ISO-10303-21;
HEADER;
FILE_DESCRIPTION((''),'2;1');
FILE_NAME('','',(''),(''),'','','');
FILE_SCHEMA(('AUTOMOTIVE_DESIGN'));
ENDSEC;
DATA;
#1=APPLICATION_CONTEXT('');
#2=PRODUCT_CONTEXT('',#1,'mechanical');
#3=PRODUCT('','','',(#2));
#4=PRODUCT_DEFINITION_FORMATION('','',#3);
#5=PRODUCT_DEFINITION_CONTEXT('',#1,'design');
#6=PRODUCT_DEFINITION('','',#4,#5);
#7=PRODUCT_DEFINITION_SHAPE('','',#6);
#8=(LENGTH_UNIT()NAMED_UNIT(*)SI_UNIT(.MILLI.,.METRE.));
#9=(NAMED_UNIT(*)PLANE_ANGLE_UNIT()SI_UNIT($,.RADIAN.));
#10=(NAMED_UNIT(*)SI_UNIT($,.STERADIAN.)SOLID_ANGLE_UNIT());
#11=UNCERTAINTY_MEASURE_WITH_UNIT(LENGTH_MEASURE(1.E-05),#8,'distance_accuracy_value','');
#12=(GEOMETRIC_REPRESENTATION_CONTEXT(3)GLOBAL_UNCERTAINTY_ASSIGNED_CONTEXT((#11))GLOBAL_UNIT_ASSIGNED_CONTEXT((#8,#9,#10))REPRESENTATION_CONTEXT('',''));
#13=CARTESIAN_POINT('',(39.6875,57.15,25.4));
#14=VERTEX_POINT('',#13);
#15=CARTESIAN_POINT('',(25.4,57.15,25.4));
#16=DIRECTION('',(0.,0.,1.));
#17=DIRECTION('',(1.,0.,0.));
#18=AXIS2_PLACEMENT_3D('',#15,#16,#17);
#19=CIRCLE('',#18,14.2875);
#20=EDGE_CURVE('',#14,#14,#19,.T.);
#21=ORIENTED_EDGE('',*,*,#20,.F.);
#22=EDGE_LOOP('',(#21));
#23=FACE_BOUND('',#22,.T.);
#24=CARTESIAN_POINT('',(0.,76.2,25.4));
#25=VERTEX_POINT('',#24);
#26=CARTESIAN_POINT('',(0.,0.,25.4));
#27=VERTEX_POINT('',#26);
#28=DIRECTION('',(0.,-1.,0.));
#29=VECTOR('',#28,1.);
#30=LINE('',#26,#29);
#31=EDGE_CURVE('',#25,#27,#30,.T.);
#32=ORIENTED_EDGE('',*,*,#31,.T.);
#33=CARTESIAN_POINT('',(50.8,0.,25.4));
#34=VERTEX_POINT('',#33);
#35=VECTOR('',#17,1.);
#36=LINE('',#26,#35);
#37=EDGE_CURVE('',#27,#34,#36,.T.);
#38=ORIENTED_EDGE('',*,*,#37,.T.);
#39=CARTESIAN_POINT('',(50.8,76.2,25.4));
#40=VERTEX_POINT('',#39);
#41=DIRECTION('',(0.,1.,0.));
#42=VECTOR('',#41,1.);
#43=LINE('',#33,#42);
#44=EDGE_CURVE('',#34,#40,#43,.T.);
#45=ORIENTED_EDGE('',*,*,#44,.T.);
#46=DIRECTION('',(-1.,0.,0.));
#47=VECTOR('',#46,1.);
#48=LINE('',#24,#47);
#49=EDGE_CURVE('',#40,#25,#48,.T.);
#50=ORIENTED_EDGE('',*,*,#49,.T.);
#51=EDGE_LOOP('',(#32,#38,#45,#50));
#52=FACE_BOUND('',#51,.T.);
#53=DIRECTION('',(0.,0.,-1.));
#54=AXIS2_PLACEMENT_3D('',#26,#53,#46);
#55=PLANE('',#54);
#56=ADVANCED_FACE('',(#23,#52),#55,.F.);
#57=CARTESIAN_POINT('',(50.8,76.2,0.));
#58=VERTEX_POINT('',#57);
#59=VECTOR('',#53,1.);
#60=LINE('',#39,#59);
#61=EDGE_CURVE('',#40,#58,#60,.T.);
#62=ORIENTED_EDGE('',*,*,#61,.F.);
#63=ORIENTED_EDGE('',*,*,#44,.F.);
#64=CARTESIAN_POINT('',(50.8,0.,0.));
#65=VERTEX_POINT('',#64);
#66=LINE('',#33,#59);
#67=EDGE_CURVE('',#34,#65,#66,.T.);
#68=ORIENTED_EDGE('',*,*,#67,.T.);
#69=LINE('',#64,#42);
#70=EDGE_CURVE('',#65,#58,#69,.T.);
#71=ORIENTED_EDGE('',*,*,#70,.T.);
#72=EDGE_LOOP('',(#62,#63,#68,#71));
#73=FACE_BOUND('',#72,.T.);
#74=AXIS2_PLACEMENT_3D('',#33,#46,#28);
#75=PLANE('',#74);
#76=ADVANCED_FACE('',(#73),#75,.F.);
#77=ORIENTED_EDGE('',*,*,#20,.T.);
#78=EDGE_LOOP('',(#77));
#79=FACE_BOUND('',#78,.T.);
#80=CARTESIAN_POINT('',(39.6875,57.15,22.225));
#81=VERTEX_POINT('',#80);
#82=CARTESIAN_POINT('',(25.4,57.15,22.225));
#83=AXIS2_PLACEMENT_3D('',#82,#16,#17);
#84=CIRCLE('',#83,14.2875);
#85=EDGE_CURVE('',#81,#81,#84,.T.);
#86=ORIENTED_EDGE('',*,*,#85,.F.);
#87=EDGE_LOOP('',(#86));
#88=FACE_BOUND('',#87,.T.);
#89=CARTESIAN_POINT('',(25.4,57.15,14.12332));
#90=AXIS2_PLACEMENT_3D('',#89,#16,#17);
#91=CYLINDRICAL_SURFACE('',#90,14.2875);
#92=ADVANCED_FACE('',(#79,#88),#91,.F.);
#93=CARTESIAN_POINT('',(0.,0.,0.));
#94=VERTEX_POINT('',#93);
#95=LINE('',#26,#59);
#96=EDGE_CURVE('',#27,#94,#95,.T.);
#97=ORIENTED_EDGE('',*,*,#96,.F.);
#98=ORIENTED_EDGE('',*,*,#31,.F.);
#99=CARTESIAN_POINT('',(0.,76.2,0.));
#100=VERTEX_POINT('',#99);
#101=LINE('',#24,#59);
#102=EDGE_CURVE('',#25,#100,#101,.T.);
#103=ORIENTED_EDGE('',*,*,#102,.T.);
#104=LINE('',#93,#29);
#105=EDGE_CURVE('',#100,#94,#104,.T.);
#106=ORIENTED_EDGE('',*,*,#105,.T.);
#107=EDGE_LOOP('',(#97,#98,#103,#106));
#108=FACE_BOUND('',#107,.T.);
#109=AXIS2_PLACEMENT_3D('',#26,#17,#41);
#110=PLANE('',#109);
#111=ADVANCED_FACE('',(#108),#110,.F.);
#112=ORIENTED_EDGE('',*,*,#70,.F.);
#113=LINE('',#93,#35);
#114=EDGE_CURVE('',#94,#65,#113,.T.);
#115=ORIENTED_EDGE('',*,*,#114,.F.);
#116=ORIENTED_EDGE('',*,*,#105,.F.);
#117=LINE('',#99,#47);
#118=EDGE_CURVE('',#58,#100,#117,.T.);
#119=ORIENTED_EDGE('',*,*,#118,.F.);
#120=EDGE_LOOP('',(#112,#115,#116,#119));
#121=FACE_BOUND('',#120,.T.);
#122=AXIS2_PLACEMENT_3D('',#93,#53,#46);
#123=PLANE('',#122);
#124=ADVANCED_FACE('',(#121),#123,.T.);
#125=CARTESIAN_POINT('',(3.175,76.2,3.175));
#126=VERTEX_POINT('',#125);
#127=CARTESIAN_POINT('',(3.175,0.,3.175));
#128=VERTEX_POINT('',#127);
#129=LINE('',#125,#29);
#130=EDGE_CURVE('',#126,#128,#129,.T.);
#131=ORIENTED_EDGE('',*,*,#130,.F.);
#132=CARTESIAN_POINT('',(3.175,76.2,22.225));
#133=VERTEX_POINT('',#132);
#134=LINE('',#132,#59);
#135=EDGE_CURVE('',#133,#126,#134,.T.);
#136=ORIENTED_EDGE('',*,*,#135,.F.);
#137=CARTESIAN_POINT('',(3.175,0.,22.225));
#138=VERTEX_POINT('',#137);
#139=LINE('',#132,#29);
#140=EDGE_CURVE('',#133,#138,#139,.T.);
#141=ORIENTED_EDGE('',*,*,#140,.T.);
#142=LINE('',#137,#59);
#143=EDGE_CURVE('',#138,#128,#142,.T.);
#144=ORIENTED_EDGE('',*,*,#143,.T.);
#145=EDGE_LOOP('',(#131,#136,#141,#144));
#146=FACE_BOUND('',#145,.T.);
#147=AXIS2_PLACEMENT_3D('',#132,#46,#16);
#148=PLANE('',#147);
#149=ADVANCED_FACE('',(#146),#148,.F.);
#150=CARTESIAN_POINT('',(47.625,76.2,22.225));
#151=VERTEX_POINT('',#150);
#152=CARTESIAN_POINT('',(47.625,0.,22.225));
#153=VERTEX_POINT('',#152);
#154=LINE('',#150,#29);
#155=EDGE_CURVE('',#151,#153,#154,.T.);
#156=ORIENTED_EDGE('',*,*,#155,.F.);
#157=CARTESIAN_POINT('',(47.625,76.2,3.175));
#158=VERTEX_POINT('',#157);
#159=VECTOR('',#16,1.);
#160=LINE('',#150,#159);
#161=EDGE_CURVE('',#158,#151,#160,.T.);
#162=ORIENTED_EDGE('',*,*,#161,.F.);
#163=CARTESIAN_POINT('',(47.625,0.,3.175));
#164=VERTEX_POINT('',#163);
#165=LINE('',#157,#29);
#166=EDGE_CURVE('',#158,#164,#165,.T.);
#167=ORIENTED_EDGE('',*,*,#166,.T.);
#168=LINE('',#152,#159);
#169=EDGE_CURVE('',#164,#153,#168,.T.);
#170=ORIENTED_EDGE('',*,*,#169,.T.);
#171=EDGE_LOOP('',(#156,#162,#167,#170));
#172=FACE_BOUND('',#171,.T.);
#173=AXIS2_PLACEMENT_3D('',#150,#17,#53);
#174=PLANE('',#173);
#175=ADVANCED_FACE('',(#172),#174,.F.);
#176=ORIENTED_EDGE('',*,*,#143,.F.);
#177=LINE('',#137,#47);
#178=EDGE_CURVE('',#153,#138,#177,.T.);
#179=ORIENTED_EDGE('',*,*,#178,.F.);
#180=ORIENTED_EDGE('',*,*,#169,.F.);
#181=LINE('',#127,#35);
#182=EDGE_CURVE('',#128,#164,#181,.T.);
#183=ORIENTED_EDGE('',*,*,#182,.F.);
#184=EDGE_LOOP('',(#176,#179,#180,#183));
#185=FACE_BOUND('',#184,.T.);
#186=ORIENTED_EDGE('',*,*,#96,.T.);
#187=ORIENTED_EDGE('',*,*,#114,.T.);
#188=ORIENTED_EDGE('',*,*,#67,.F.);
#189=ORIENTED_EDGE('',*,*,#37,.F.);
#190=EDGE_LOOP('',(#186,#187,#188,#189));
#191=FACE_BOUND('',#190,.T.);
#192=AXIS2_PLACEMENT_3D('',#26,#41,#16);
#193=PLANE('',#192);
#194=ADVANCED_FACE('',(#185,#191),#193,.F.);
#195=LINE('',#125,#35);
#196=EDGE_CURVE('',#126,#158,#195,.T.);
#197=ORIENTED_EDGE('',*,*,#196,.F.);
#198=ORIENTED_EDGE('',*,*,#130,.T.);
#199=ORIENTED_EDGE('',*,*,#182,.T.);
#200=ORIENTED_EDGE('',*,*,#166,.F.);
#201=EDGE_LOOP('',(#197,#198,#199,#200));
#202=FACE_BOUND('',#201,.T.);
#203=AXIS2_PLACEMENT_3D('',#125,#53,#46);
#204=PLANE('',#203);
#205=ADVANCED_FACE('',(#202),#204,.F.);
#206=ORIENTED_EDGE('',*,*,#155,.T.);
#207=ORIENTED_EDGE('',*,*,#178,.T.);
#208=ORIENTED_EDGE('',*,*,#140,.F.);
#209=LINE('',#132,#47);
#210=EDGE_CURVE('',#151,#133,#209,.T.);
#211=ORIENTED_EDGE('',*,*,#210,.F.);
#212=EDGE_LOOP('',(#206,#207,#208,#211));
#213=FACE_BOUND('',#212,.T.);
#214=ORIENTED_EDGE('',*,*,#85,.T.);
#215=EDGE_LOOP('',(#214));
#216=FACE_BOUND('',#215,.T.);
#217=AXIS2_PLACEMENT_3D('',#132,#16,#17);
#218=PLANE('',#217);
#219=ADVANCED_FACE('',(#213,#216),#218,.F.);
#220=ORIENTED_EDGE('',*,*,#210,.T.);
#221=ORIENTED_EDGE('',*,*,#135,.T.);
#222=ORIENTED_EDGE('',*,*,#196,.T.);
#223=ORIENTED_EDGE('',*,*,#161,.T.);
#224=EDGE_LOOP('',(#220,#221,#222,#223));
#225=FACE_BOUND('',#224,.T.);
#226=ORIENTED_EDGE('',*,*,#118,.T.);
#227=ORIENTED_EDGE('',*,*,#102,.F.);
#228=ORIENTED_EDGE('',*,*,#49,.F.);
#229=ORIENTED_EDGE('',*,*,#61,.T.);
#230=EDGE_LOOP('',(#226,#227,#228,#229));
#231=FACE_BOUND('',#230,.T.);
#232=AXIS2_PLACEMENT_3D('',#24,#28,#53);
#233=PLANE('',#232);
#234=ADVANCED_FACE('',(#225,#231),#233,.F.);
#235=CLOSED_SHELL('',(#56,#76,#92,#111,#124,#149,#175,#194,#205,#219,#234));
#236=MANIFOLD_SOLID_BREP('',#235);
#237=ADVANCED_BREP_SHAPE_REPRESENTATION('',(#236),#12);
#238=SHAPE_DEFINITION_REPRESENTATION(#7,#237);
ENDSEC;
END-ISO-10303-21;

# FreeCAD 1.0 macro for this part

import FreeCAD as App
import Part
import Sketcher
Q = App.Units.Quantity


def add_polygon(sketch, points):
    """Adds a closed chain of lines whose ends are joined by coincident constraints."""
    first, n = sketch.GeometryCount, len(points)
    for a, b in zip(points, points[1:] + points[:1]):
        sketch.addGeometry(Part.LineSegment(App.Vector(*a, 0), App.Vector(*b, 0)), False)
    for i in range(n):
        sketch.addConstraint(Sketcher.Constraint("Coincident", first + i, 2, first + (i + 1) % n, 1))

doc = App.newDocument("Part")
params = doc.addObject("Spreadsheet::Sheet", "Params")
for row, (alias, value) in enumerate([
    ("sketch1_width", "2 in"),
    ("sketch1_height", "3 in"),
    ("pad1_length", "1 in"),
    ("sketch2_width", "1.75 in"),
    ("sketch2_height", "0.75 in"),
    ("sketch3_diameter", "1.125 in"),
    ("pocket2_length", "11.27668 mm"),
], start=1):
    params.set(f"A{row}", alias)
    params.set(f"B{row}", "=" + value)
    params.setAlias(f"B{row}", alias)

body = doc.addObject("PartDesign::Body", "Body")

# Sketch on XY plane
sketch1 = doc.addObject("Sketcher::SketchObject", "Sketch")
body.addObject(sketch1)
sketch1.AttachmentSupport = (doc.XY_Plane, [""])
sketch1.MapMode = "FlatFace"
add_polygon(sketch1, [(0, 76), (0, 0), (51, 0), (51, 76)])  # lines 0-3
sketch1.addConstraint(Sketcher.Constraint("Vertical", 0))
sketch1.addConstraint(Sketcher.Constraint("Horizontal", 1))
sketch1.addConstraint(Sketcher.Constraint("Vertical", 2))
sketch1.addConstraint(Sketcher.Constraint("Horizontal", 3))
sketch1.addConstraint(Sketcher.Constraint("Coincident", 0, 2, -1, 1))
sketch1.addConstraint(Sketcher.Constraint("DistanceX", 1, 1, 1, 2, Q("2 in")))
sketch1.addConstraint(Sketcher.Constraint("DistanceY", 0, 2, 0, 1, Q("3 in")))
sketch1.setExpression("Constraints[9]", "Params.sketch1_width")
sketch1.setExpression("Constraints[10]", "Params.sketch1_height")
pad1 = doc.addObject("PartDesign::Pad", "Pad")
body.addObject(pad1)
pad1.Profile = sketch1
pad1.setExpression("Length", "Params.pad1_length")

# Sketch on XZ plane
sketch2 = doc.addObject("Sketcher::SketchObject", "Sketch001")
body.addObject(sketch2)
sketch2.AttachmentSupport = (doc.XZ_Plane, [""])
sketch2.MapMode = "FlatFace"
add_polygon(sketch2, [(3, 22), (3, 3), (48, 3), (48, 22)])  # lines 0-3
sketch2.addConstraint(Sketcher.Constraint("Vertical", 0))
sketch2.addConstraint(Sketcher.Constraint("Horizontal", 1))
sketch2.addConstraint(Sketcher.Constraint("Vertical", 2))
sketch2.addConstraint(Sketcher.Constraint("Horizontal", 3))
sketch2.addConstraint(Sketcher.Constraint("DistanceX", 1, 1, 1, 2, Q("1.75 in")))
sketch2.addConstraint(Sketcher.Constraint("DistanceY", 0, 2, 0, 1, Q("0.75 in")))
sketch2.addConstraint(Sketcher.Constraint("DistanceX", -1, 1, 0, 2, Q("0.125 in")))
sketch2.addConstraint(Sketcher.Constraint("DistanceY", -1, 1, 0, 2, Q("0.125 in")))
sketch2.setExpression("Constraints[8]", "Params.sketch2_width")
sketch2.setExpression("Constraints[9]", "Params.sketch2_height")
pocket1 = doc.addObject("PartDesign::Pocket", "Pocket")
body.addObject(pocket1)
pocket1.Profile = sketch2
pocket1.Type = "ThroughAll"

# Sketch on XY plane
sketch3 = doc.addObject("Sketcher::SketchObject", "Sketch002")
body.addObject(sketch3)
sketch3.AttachmentSupport = (doc.XY_Plane, [""])
sketch3.MapMode = "FlatFace"
sketch3.AttachmentOffset = App.Placement(App.Vector(0, 0, 1 * 25.4), App.Rotation())
sketch3.addGeometry(Part.Circle(App.Vector(25, 57, 0), App.Vector(0, 0, 1), 14), False)
sketch3.addConstraint(Sketcher.Constraint("Diameter", 0, Q("1.125 in")))
sketch3.addConstraint(Sketcher.Constraint("DistanceX", -1, 1, 0, 3, Q("1 in")))
sketch3.addConstraint(Sketcher.Constraint("DistanceY", -1, 1, 0, 3, Q("2.25 in")))
sketch3.setExpression("Constraints[0]", "Params.sketch3_diameter")
pocket2 = doc.addObject("PartDesign::Pocket", "Pocket001")
body.addObject(pocket2)
pocket2.Profile = sketch3
pocket2.setExpression("Length", "Params.pocket2_length")

doc.recompute()
